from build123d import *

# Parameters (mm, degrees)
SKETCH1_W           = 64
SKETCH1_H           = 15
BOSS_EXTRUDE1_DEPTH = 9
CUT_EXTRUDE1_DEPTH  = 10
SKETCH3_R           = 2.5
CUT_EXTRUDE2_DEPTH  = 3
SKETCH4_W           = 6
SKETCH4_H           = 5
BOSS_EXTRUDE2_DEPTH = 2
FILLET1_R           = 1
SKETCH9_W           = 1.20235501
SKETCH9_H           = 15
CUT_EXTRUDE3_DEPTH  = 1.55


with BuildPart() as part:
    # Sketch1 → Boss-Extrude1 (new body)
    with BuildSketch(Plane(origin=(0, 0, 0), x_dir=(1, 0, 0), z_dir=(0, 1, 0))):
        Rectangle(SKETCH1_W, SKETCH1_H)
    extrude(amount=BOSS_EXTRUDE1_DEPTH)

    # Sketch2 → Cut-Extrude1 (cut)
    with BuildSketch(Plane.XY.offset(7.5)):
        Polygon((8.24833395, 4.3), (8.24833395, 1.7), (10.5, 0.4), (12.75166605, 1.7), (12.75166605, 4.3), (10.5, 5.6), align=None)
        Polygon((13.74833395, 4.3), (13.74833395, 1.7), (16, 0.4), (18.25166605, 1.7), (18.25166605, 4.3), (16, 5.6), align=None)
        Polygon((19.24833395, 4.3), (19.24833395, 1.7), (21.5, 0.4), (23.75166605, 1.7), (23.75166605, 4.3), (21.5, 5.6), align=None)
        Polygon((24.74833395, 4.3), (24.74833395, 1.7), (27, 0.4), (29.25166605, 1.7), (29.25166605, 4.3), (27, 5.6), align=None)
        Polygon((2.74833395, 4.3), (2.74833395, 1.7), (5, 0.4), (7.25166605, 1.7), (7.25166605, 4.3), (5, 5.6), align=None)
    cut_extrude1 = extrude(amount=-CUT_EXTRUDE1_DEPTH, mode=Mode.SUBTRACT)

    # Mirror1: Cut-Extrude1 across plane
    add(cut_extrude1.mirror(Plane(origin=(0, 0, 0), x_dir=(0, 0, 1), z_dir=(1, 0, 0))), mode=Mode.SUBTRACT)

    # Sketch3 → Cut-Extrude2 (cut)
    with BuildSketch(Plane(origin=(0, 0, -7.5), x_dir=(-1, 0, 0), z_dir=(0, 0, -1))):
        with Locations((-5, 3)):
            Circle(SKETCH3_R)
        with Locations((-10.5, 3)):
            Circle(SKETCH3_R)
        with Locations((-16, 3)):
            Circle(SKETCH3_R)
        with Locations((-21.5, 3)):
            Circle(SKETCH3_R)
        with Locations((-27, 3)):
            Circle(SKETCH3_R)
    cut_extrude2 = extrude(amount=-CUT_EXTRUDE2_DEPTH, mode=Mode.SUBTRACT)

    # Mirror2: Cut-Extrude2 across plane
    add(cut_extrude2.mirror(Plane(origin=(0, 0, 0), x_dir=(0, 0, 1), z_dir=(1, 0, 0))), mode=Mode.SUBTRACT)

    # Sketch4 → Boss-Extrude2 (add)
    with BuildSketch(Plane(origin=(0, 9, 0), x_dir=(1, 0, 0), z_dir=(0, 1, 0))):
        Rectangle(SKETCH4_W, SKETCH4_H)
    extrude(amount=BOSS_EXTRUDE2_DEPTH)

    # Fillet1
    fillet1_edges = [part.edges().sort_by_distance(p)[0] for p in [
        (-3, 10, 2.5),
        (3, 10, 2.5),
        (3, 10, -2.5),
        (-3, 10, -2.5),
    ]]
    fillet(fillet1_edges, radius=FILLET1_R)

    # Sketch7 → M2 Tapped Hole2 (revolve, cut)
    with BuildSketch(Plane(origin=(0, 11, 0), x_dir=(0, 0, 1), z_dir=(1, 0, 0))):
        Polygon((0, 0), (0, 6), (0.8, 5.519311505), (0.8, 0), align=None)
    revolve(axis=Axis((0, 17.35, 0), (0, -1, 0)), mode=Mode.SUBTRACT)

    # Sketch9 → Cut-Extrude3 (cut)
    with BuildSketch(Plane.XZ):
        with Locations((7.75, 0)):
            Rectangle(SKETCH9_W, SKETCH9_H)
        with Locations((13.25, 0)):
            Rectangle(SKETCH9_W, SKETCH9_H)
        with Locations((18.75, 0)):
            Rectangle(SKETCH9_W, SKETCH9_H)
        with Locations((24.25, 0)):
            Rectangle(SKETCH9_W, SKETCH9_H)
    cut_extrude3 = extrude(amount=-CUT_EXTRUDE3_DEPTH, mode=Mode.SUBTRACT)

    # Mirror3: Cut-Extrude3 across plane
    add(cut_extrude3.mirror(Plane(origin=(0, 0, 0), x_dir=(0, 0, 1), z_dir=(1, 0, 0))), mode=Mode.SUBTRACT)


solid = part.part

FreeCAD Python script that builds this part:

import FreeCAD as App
import Part
import Sketcher

V = App.Vector
Q = App.Units.Quantity


def edges_at(feature, points):
    """Names of the edges that pass closest to the given points."""
    edges = feature.Shape.Edges
    near = lambda p: min(range(len(edges)), key=lambda i: edges[i].distToShape(Part.Vertex(*p))[0])
    return sorted({f"Edge{near(p) + 1}" for p in points})


def add_polygon(sketch, points):
    """Adds a closed chain of lines whose ends are joined by coincident constraints."""
    first, n = sketch.GeometryCount, len(points)
    for a, b in zip(points, points[1:] + points[:1]):
        sketch.addGeometry(Part.LineSegment(App.Vector(*a, 0), App.Vector(*b, 0)), False)
    for i in range(n):
        sketch.addConstraint(Sketcher.Constraint("Coincident", first + i, 2, first + (i + 1) % n, 1))

doc = App.newDocument("Part")
body = doc.addObject("PartDesign::Body", "Body")

# Sketch on XZ plane
sketch1 = body.newObject("Sketcher::SketchObject", "Sketch")
sketch1.AttachmentSupport = (doc.getObject("XZ_Plane"), [""])
sketch1.MapMode = "FlatFace"
add_polygon(sketch1, [(-32, -7.5), (-32, 7.5), (32, 7.5), (32, -7.5)])  # lines 0-3
sketch1.addConstraint([
    Sketcher.Constraint("Vertical", 0),
    Sketcher.Constraint("Horizontal", 1),
    Sketcher.Constraint("Vertical", 2),
    Sketcher.Constraint("Horizontal", 3),
    Sketcher.Constraint("Symmetric", 0, 2, 2, 2, -1, 1),
    Sketcher.Constraint("DistanceX", 1, 1, 1, 2, Q("64 mm")),
    Sketcher.Constraint("DistanceY", 0, 1, 0, 2, Q("15 mm")),
])
pad1 = body.newObject("PartDesign::Pad", "Pad")
pad1.Profile = sketch1
pad1.Length = 9
pad1.Reversed = True

# Sketch on XY plane
sketch2 = body.newObject("Sketcher::SketchObject", "Sketch001")
sketch2.AttachmentSupport = (doc.getObject("XY_Plane"), [""])
sketch2.MapMode = "FlatFace"
sketch2.AttachmentOffset = App.Placement(V(0, 0, 7.5), App.Rotation())
add_polygon(sketch2, [(8.248334, 4.3), (8.248334, 1.7), (10.5, 0.4), (12.751666, 1.7), (12.751666, 4.3), (10.5, 5.6)])  # lines 0-5
add_polygon(sketch2, [(13.748334, 4.3), (13.748334, 1.7), (16, 0.4), (18.251666, 1.7), (18.251666, 4.3), (16, 5.6)])  # lines 6-11
add_polygon(sketch2, [(19.248334, 4.3), (19.248334, 1.7), (21.5, 0.4), (23.751666, 1.7), (23.751666, 4.3), (21.5, 5.6)])  # lines 12-17
add_polygon(sketch2, [(24.748334, 4.3), (24.748334, 1.7), (27, 0.4), (29.251666, 1.7), (29.251666, 4.3), (27, 5.6)])  # lines 18-23
add_polygon(sketch2, [(2.748334, 4.3), (2.748334, 1.7), (5, 0.4), (7.251666, 1.7), (7.251666, 4.3), (5, 5.6)])  # lines 24-29
sketch2.addConstraint([
    Sketcher.Constraint("Vertical", 0),
    Sketcher.Constraint("Vertical", 3),
    Sketcher.Constraint("Vertical", 6),
    Sketcher.Constraint("Vertical", 9),
    Sketcher.Constraint("Vertical", 12),
    Sketcher.Constraint("Vertical", 15),
    Sketcher.Constraint("Vertical", 18),
    Sketcher.Constraint("Vertical", 21),
    Sketcher.Constraint("Vertical", 24),
    Sketcher.Constraint("Vertical", 27),
    Sketcher.Constraint("Parallel", 1, 4),
    Sketcher.Constraint("Parallel", 2, 5),
    Sketcher.Constraint("Parallel", 4, 7),
    Sketcher.Constraint("Parallel", 5, 8),
    Sketcher.Constraint("Parallel", 7, 10),
    Sketcher.Constraint("Parallel", 8, 11),
    Sketcher.Constraint("Parallel", 10, 13),
    Sketcher.Constraint("Parallel", 11, 14),
    Sketcher.Constraint("Parallel", 13, 16),
    Sketcher.Constraint("Parallel", 14, 17),
    Sketcher.Constraint("Parallel", 16, 19),
    Sketcher.Constraint("Parallel", 17, 20),
    Sketcher.Constraint("Parallel", 19, 22),
    Sketcher.Constraint("Parallel", 20, 23),
    Sketcher.Constraint("Parallel", 22, 25),
    Sketcher.Constraint("Parallel", 23, 26),
    Sketcher.Constraint("Parallel", 25, 28),
    Sketcher.Constraint("Parallel", 26, 29),
    Sketcher.Constraint("Horizontal", 0, 2, 2, 2),
    Sketcher.Constraint("Horizontal", 3, 2, 5, 2),
    Sketcher.Constraint("Horizontal", 2, 2, 6, 2),
    Sketcher.Constraint("Horizontal", 1, 2, 7, 2),
    Sketcher.Constraint("Horizontal", 6, 2, 8, 2),
    Sketcher.Constraint("Horizontal", 5, 2, 9, 2),
    Sketcher.Constraint("Horizontal", 4, 2, 10, 2),
    Sketcher.Constraint("Horizontal", 8, 2, 12, 2),
    Sketcher.Constraint("Horizontal", 7, 2, 13, 2),
    Sketcher.Constraint("Horizontal", 12, 2, 14, 2),
    Sketcher.Constraint("Horizontal", 11, 2, 15, 2),
    Sketcher.Constraint("Horizontal", 10, 2, 16, 2),
    Sketcher.Constraint("Horizontal", 14, 2, 18, 2),
    Sketcher.Constraint("Horizontal", 13, 2, 19, 2),
    Sketcher.Constraint("Horizontal", 18, 2, 20, 2),
    Sketcher.Constraint("Horizontal", 17, 2, 21, 2),
    Sketcher.Constraint("Horizontal", 16, 2, 22, 2),
    Sketcher.Constraint("Horizontal", 20, 2, 24, 2),
    Sketcher.Constraint("Horizontal", 19, 2, 25, 2),
    Sketcher.Constraint("Horizontal", 24, 2, 26, 2),
    Sketcher.Constraint("Horizontal", 23, 2, 27, 2),
    Sketcher.Constraint("Horizontal", 22, 2, 28, 2),
    Sketcher.Constraint("Vertical", 1, 2, 4, 2),
    Sketcher.Constraint("Angle", 1, Q("-30 deg")),
    Sketcher.Constraint("DistanceY", 0, 2, 0, 1, Q("2.6 mm")),
    Sketcher.Constraint("DistanceX", -1, 1, 7, 2, Q("16 mm")),
    Sketcher.Constraint("DistanceX", -1, 1, 19, 2, Q("27 mm")),
    Sketcher.Constraint("DistanceX", -1, 1, 25, 2, Q("5 mm")),
    Sketcher.Constraint("Distance", 1, Q("2.6 mm")),
    Sketcher.Constraint("DistanceY", -1, 1, 0, 2, Q("1.7 mm")),
    Sketcher.Constraint("DistanceX", -1, 1, 1, 2, Q("10.5 mm")),
    Sketcher.Constraint("DistanceX", -1, 1, 13, 2, Q("21.5 mm")),
])
pocket1 = body.newObject("PartDesign::Pocket", "Pocket")
pocket1.Profile = sketch2
pocket1.Length = 10
doc.recompute()

mirrored = body.newObject("PartDesign::Mirrored", "Mirrored")
mirrored.Originals = [pocket1]
mirrored.MirrorPlane = (doc.getObject("YZ_Plane"), [""])
body.Tip = mirrored

# Sketch on XY plane
sketch3 = body.newObject("Sketcher::SketchObject", "Sketch002")
sketch3.AttachmentSupport = (doc.getObject("XY_Plane"), [""])
sketch3.MapMode = "FlatFace"
sketch3.AttachmentOffset = App.Placement(V(0, 0, -7.5), App.Rotation())
sketch3.addGeometry([
    Part.Circle(V(5, 3, 0), V(0, 0, 1), 2.5),  # 0
    Part.Circle(V(10.5, 3, 0), V(0, 0, 1), 2.5),  # 1
    Part.Circle(V(16, 3, 0), V(0, 0, 1), 2.5),  # 2
    Part.Circle(V(21.5, 3, 0), V(0, 0, 1), 2.5),  # 3
    Part.Circle(V(27, 3, 0), V(0, 0, 1), 2.5),  # 4
], False)
sketch3.addConstraint([
    Sketcher.Constraint("Equal", 0, 1),
    Sketcher.Constraint("Equal", 1, 2),
    Sketcher.Constraint("Equal", 2, 3),
    Sketcher.Constraint("Equal", 3, 4),
    Sketcher.Constraint("Horizontal", 0, 3, 1, 3),
    Sketcher.Constraint("Horizontal", 1, 3, 2, 3),
    Sketcher.Constraint("Horizontal", 2, 3, 3, 3),
    Sketcher.Constraint("Horizontal", 3, 3, 4, 3),
    Sketcher.Constraint("Diameter", 0, Q("5 mm")),
    Sketcher.Constraint("DistanceX", -1, 1, 0, 3, Q("5 mm")),
    Sketcher.Constraint("DistanceY", -1, 1, 0, 3, Q("3 mm")),
    Sketcher.Constraint("DistanceX", -1, 1, 2, 3, Q("16 mm")),
    Sketcher.Constraint("DistanceX", -1, 1, 4, 3, Q("27 mm")),
    Sketcher.Constraint("DistanceX", 1, 3, 3, 3, Q("11 mm")),
    Sketcher.Constraint("DistanceX", -1, 1, 1, 3, Q("10.5 mm")),
])
pocket2 = body.newObject("PartDesign::Pocket", "Pocket001")
pocket2.Profile = sketch3
pocket2.Length = 3
pocket2.Reversed = True
doc.recompute()

mirrored2 = body.newObject("PartDesign::Mirrored", "Mirrored001")
mirrored2.Originals = [pocket2]
mirrored2.MirrorPlane = (doc.getObject("YZ_Plane"), [""])
body.Tip = mirrored2

# Sketch on XZ plane
sketch4 = body.newObject("Sketcher::SketchObject", "Sketch003")
sketch4.AttachmentSupport = (doc.getObject("XZ_Plane"), [""])
sketch4.MapMode = "FlatFace"
sketch4.AttachmentOffset = App.Placement(V(0, 0, -9), App.Rotation())
add_polygon(sketch4, [(-3, -2.5), (-3, 2.5), (3, 2.5), (3, -2.5)])  # lines 0-3
sketch4.addConstraint([
    Sketcher.Constraint("Vertical", 0),
    Sketcher.Constraint("Horizontal", 1),
    Sketcher.Constraint("Vertical", 2),
    Sketcher.Constraint("Horizontal", 3),
    Sketcher.Constraint("Symmetric", 0, 2, 2, 2, -1, 1),
    Sketcher.Constraint("DistanceX", 1, 1, 1, 2, Q("6 mm")),
    Sketcher.Constraint("DistanceY", 0, 1, 0, 2, Q("5 mm")),
])
pad2 = body.newObject("PartDesign::Pad", "Pad001")
pad2.Profile = sketch4
pad2.Length = 2
pad2.Reversed = True
doc.recompute()

fillet = body.newObject("PartDesign::Fillet", "Fillet")
fillet.Base = (pad2, edges_at(pad2, [
    (-3, 10, 2.5),
    (3, 10, 2.5),
    (3, 10, -2.5),
    (-3, 10, -2.5),
]))
fillet.Radius = 1

# Sketch on YZ plane
sketch5 = body.newObject("Sketcher::SketchObject", "Sketch004")
sketch5.AttachmentSupport = (doc.getObject("YZ_Plane"), [""])
sketch5.MapMode = "FlatFace"
add_polygon(sketch5, [(5, 0), (11, 0), (11, 0.8), (5.480688, 0.8)])  # lines 0-3
sketch5.addConstraint([
    Sketcher.Constraint("Horizontal", 0),
    Sketcher.Constraint("Vertical", 1),
    Sketcher.Constraint("Horizontal", 2),
    Sketcher.Constraint("PointOnObject", 0, 2, -1),
    Sketcher.Constraint("DistanceX", 0, 1, 0, 2, Q("6 mm")),
    Sketcher.Constraint("Angle", 3, Q("-121 deg")),
    Sketcher.Constraint("DistanceY", 1, 1, 1, 2, Q("0.8 mm")),
    Sketcher.Constraint("DistanceX", -1, 1, 0, 2, Q("11 mm")),
])
groove = body.newObject("PartDesign::Groove", "Groove")
groove.Profile = sketch5
groove.ReferenceAxis = (sketch5, ["H_Axis"])
groove.Angle = 360

# Sketch on XZ plane
sketch6 = body.newObject("Sketcher::SketchObject", "Sketch005")
sketch6.AttachmentSupport = (doc.getObject("XZ_Plane"), [""])
sketch6.MapMode = "FlatFace"
add_polygon(sketch6, [(7.148822, 7.5), (7.148822, -7.5), (8.351178, -7.5), (8.351178, 7.5)])  # lines 0-3
add_polygon(sketch6, [(12.648822, 7.5), (12.648822, -7.5), (13.851178, -7.5), (13.851178, 7.5)])  # lines 4-7
add_polygon(sketch6, [(18.148822, 7.5), (18.148822, -7.5), (19.351178, -7.5), (19.351178, 7.5)])  # lines 8-11
add_polygon(sketch6, [(23.648822, 7.5), (23.648822, -7.5), (24.851178, -7.5), (24.851178, 7.5)])  # lines 12-15
sketch6.addConstraint([
    Sketcher.Constraint("Vertical", 0),
    Sketcher.Constraint("Horizontal", 1),
    Sketcher.Constraint("Vertical", 2),
    Sketcher.Constraint("Horizontal", 3),
    Sketcher.Constraint("Vertical", 4),
    Sketcher.Constraint("Horizontal", 5),
    Sketcher.Constraint("Vertical", 6),
    Sketcher.Constraint("Horizontal", 7),
    Sketcher.Constraint("Vertical", 8),
    Sketcher.Constraint("Horizontal", 9),
    Sketcher.Constraint("Vertical", 10),
    Sketcher.Constraint("Horizontal", 11),
    Sketcher.Constraint("Vertical", 12),
    Sketcher.Constraint("Horizontal", 13),
    Sketcher.Constraint("Vertical", 14),
    Sketcher.Constraint("Horizontal", 15),
    Sketcher.Constraint("Horizontal", 1, 2, 4, 2),
    Sketcher.Constraint("Horizontal", 3, 2, 6, 2),
    Sketcher.Constraint("Horizontal", 5, 2, 8, 2),
    Sketcher.Constraint("Horizontal", 7, 2, 10, 2),
    Sketcher.Constraint("Horizontal", 9, 2, 12, 2),
    Sketcher.Constraint("Horizontal", 11, 2, 14, 2),
    Sketcher.Constraint("Equal", 3, 5),
    Sketcher.Constraint("Equal", 7, 9),
    Sketcher.Constraint("Equal", 11, 13),
    Sketcher.Constraint("DistanceY", 0, 2, 0, 1, Q("15 mm")),
    Sketcher.Constraint("DistanceX", 0, 2, 8, 2, Q("11 mm")),
    Sketcher.Constraint("DistanceX", 4, 2, 12, 2, Q("11 mm")),
    Sketcher.Constraint("DistanceY", 0, 2, -1, 1, Q("7.5 mm")),
    Sketcher.Constraint("DistanceX", 0, 2, 4, 2, Q("5.5 mm")),
    Sketcher.Constraint("DistanceX", 1, 1, 1, 2, Q("1.202355 mm")),
    Sketcher.Constraint("DistanceX", -1, 1, 0, 2, Q("7.148822 mm")),
])
pocket3 = body.newObject("PartDesign::Pocket", "Pocket002")
pocket3.Profile = sketch6
pocket3.Length = 1.55
doc.recompute()

mirrored3 = body.newObject("PartDesign::Mirrored", "Mirrored002")
mirrored3.Originals = [pocket3]
mirrored3.MirrorPlane = (doc.getObject("YZ_Plane"), [""])
body.Tip = mirrored3

doc.recompute()
